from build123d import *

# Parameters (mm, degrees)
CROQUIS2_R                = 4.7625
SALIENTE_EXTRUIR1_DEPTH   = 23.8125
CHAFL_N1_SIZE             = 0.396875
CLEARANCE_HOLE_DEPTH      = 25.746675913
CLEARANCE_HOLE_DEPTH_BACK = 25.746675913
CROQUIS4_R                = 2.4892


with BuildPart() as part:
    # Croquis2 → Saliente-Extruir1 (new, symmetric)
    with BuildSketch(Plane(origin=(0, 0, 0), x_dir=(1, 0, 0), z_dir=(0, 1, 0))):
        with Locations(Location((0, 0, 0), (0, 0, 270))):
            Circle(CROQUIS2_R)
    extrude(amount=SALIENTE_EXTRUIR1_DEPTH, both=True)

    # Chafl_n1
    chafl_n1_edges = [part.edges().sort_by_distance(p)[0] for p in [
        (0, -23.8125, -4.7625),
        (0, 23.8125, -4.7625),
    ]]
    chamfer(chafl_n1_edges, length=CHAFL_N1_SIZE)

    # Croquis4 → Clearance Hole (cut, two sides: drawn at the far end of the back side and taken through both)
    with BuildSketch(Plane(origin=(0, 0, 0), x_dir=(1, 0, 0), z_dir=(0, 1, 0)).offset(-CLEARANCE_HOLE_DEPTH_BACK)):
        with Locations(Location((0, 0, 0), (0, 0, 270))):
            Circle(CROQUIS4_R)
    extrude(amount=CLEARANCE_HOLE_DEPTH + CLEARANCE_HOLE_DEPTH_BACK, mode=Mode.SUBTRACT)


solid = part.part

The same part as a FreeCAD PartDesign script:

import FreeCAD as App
import Part
import Sketcher
Q = App.Units.Quantity


def edges_at(feature, points):
    """Names of the edges that pass closest to the given points."""
    edges = feature.Shape.Edges
    near = lambda p: min(range(len(edges)), key=lambda i: edges[i].distToShape(Part.Vertex(*p))[0])
    return sorted({f"Edge{near(p) + 1}" for p in points})

doc = App.newDocument("Part")
body = doc.addObject("PartDesign::Body", "Body")

# Sketch on XZ plane
sketch1 = doc.addObject("Sketcher::SketchObject", "Sketch")
body.addObject(sketch1)
sketch1.AttachmentSupport = (doc.XZ_Plane, [""])
sketch1.MapMode = "FlatFace"
sketch1.addGeometry(Part.Circle(App.Vector(0, 0, 0), App.Vector(0, 0, 1), 4.8), False)
sketch1.addConstraint([
    Sketcher.Constraint("Coincident", 0, 3, -1, 1),
    Sketcher.Constraint("Diameter", 0, Q("0.375 in")),
])
pad1 = doc.addObject("PartDesign::Pad", "Pad")
body.addObject(pad1)
pad1.Profile = sketch1
pad1.Length = Q("1.875 in")
pad1.Midplane = True
doc.recompute()

chamfer = doc.addObject("PartDesign::Chamfer", "Chamfer")
body.addObject(chamfer)
chamfer.Base = (pad1, edges_at(pad1, [(0, -23.812, -4.763), (0, 23.812, -4.763)]))
chamfer.Size = Q("0.015625 in")

# Sketch on XZ plane
sketch2 = doc.addObject("Sketcher::SketchObject", "Sketch001")
body.addObject(sketch2)
sketch2.AttachmentSupport = (doc.XZ_Plane, [""])
sketch2.MapMode = "FlatFace"
sketch2.addGeometry(Part.Circle(App.Vector(0, 0, 0), App.Vector(0, 0, 1), 2.5), False)
sketch2.addConstraint([
    Sketcher.Constraint("Coincident", 0, 3, -1, 1),
    Sketcher.Constraint("Diameter", 0, Q("0.196 in")),
])
pocket1 = doc.addObject("PartDesign::Pocket", "Pocket")
body.addObject(pocket1)
pocket1.Profile = sketch2
pocket1.Type = "ThroughAll"
pocket1.Midplane = True

doc.recompute()
